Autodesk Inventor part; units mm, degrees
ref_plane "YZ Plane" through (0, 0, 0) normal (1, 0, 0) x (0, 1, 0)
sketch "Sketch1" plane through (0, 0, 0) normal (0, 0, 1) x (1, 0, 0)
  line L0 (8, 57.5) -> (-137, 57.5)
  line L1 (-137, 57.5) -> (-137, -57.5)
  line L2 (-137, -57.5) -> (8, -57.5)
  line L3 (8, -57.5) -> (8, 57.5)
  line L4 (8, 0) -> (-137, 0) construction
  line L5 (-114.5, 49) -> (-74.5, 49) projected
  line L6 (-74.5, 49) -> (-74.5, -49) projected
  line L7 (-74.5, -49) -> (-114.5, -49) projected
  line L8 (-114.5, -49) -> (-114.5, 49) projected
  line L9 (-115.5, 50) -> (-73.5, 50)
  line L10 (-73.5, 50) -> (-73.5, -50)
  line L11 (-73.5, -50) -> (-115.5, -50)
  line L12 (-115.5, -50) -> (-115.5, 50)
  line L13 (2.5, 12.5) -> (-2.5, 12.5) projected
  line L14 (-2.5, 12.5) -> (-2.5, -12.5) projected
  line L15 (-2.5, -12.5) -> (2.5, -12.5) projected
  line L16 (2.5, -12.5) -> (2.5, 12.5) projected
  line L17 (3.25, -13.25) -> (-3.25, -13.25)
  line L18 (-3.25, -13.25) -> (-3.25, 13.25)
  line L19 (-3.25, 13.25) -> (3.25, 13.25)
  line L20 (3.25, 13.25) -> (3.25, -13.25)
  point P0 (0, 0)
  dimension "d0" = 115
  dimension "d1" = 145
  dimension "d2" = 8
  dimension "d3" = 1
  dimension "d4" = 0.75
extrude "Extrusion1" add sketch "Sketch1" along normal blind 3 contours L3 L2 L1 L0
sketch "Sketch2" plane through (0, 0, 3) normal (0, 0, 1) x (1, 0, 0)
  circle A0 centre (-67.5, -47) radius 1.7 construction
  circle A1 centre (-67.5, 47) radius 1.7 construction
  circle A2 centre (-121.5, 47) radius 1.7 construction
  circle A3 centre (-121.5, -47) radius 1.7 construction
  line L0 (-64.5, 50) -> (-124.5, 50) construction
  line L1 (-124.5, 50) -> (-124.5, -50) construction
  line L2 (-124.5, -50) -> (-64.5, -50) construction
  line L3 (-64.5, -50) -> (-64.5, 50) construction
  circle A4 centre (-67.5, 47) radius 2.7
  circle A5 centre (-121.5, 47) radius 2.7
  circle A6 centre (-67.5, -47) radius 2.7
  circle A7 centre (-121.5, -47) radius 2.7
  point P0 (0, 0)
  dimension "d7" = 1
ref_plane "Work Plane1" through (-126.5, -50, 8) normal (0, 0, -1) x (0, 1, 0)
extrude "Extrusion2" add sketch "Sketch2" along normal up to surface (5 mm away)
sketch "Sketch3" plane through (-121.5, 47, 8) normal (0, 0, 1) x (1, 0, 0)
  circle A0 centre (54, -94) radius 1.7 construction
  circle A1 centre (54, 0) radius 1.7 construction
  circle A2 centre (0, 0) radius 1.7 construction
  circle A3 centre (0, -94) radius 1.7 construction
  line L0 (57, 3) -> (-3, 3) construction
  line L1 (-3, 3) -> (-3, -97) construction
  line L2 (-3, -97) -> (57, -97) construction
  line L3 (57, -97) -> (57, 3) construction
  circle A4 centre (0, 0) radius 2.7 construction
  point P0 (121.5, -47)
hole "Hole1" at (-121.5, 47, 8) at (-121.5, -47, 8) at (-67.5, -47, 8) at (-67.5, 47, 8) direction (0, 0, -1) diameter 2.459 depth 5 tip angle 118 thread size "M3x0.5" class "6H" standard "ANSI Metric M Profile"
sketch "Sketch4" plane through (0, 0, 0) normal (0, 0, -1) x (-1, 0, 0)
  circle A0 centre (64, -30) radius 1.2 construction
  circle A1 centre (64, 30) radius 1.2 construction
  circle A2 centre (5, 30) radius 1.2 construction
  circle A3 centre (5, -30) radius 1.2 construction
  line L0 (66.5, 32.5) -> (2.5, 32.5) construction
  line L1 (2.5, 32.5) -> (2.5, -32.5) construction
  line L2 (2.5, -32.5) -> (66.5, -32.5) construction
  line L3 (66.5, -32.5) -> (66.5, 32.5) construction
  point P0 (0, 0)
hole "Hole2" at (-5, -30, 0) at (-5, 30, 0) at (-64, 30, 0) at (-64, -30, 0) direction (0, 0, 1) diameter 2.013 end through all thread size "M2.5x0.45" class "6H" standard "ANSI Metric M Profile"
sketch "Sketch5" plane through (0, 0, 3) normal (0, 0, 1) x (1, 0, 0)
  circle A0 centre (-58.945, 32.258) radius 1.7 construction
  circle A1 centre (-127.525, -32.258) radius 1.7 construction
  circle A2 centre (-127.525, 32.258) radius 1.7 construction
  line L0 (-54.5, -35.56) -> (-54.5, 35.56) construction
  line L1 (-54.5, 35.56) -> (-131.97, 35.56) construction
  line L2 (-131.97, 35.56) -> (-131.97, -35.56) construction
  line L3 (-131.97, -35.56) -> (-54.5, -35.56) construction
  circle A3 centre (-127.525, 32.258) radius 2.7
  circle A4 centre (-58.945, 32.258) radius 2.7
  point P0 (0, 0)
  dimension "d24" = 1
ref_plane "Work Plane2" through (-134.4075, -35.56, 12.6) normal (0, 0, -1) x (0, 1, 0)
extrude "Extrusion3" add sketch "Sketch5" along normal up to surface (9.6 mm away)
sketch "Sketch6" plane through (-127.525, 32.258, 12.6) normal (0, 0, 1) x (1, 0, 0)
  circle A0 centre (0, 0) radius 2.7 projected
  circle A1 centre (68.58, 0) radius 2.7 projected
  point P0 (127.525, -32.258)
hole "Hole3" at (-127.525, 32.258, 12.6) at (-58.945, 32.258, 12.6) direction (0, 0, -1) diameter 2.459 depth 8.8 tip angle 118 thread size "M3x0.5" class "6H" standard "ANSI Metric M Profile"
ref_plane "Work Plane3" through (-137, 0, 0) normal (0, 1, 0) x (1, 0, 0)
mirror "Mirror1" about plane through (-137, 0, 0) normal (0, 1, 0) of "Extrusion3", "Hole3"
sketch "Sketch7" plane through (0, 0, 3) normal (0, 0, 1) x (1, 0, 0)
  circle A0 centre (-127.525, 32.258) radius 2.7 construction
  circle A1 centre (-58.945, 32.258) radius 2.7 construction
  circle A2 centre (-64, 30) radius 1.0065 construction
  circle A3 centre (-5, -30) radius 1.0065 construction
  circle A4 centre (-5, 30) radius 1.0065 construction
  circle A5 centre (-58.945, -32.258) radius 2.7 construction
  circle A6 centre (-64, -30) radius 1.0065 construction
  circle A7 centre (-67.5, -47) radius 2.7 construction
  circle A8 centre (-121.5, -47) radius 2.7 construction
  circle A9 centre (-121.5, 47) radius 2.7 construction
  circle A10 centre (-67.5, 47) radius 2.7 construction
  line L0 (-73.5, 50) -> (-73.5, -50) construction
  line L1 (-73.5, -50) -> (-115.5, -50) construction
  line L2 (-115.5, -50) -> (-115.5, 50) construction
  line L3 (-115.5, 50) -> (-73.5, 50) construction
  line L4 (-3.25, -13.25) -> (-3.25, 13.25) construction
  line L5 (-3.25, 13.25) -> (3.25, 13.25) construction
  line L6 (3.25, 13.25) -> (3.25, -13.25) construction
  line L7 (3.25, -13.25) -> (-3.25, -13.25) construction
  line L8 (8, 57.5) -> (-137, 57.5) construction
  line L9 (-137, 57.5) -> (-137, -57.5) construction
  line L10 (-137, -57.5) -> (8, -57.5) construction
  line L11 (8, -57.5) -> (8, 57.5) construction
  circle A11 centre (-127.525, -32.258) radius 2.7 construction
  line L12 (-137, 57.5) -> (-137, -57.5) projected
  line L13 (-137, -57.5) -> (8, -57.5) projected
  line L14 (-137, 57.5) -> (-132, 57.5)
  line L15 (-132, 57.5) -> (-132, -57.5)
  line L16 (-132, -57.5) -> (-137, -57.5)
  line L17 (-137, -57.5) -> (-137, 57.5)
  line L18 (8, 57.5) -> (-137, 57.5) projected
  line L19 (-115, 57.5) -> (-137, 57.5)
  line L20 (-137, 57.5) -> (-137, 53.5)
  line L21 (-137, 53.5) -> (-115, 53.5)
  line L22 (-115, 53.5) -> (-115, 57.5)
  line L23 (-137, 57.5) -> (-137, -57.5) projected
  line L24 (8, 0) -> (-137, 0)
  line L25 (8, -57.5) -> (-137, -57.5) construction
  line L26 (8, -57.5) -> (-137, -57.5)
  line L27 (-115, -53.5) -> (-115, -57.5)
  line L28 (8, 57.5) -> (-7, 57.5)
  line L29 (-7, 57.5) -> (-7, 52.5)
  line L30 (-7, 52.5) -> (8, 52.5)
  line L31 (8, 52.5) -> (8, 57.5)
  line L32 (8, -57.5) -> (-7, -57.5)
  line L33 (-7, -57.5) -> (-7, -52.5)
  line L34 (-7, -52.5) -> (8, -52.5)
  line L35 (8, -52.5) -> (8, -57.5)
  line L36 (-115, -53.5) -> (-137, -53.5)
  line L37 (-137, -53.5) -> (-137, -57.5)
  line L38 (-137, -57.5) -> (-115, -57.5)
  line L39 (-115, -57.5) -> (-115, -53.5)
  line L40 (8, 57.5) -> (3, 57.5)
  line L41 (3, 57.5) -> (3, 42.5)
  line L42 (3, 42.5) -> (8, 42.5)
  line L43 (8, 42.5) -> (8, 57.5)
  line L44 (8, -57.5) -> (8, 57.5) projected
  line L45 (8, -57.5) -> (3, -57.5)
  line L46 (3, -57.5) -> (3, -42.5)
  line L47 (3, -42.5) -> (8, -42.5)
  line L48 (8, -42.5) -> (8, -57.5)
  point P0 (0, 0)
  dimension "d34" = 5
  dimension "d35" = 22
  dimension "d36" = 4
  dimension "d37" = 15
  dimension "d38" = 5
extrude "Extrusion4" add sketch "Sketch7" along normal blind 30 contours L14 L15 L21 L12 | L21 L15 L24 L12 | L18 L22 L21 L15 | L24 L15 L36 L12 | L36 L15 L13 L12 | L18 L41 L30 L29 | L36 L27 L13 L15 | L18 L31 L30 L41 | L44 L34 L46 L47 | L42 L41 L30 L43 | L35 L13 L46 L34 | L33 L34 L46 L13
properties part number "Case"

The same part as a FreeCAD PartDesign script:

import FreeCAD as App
import Part
import Sketcher
from FreeCAD import Vector
Q = App.Units.Quantity

doc = App.newDocument("Part")
body = doc.addObject("PartDesign::Body", "Body")

# Sketch on XY plane
sketch1 = body.newObject("Sketcher::SketchObject", "Sketch")
sketch1.AttachmentSupport = (doc.getObject("XY_Plane"), [""])
sketch1.MapMode = "FlatFace"
sketch1.addGeometry([
    Part.LineSegment(Vector(8, -58, 0), Vector(8, 58, 0)),  # 0
    Part.LineSegment(Vector(8, 58, 0), Vector(-137, 58, 0)),  # 1
    Part.LineSegment(Vector(-137, 58, 0), Vector(-137, -58, 0)),  # 2
    Part.LineSegment(Vector(-137, -58, 0), Vector(8, -58, 0)),  # 3
    Part.LineSegment(Vector(-116, -50, 0), Vector(-116, 50, 0)),  # 4
    Part.LineSegment(Vector(-116, 50, 0), Vector(-74, 50, 0)),  # 5
    Part.LineSegment(Vector(-74, 50, 0), Vector(-74, -50, 0)),  # 6
    Part.LineSegment(Vector(-74, -50, 0), Vector(-116, -50, 0)),  # 7
    Part.LineSegment(Vector(3, 13, 0), Vector(3, -13, 0)),  # 8
    Part.LineSegment(Vector(3, -13, 0), Vector(-3, -13, 0)),  # 9
    Part.LineSegment(Vector(-3, -13, 0), Vector(-3, 13, 0)),  # 10
    Part.LineSegment(Vector(-3, 13, 0), Vector(3, 13, 0)),  # 11
], False)
sketch1.addConstraint([
    Sketcher.Constraint("Coincident", 0, 2, 1, 1),
    Sketcher.Constraint("Coincident", 1, 2, 2, 1),
    Sketcher.Constraint("Coincident", 2, 2, 3, 1),
    Sketcher.Constraint("Coincident", 3, 2, 0, 1),
    Sketcher.Constraint("Coincident", 4, 2, 5, 1),
    Sketcher.Constraint("Coincident", 5, 2, 6, 1),
    Sketcher.Constraint("Coincident", 6, 2, 7, 1),
    Sketcher.Constraint("Coincident", 7, 2, 4, 1),
    Sketcher.Constraint("Coincident", 8, 2, 9, 1),
    Sketcher.Constraint("Coincident", 9, 2, 10, 1),
    Sketcher.Constraint("Coincident", 10, 2, 11, 1),
    Sketcher.Constraint("Coincident", 11, 2, 8, 1),
    Sketcher.Constraint("Vertical", 0),
    Sketcher.Constraint("Horizontal", 1),
    Sketcher.Constraint("Vertical", 2),
    Sketcher.Constraint("Horizontal", 3),
    Sketcher.Constraint("Vertical", 4),
    Sketcher.Constraint("Horizontal", 5),
    Sketcher.Constraint("Vertical", 6),
    Sketcher.Constraint("Horizontal", 7),
    Sketcher.Constraint("Vertical", 8),
    Sketcher.Constraint("Horizontal", 9),
    Sketcher.Constraint("Vertical", 10),
    Sketcher.Constraint("Horizontal", 11),
    Sketcher.Constraint("Symmetric", 8, 2, 10, 2, -1, 1),
    Sketcher.Constraint("DistanceX", 1, 2, 1, 1, Q("145 mm")),
    Sketcher.Constraint("DistanceY", 0, 1, 0, 2, Q("115 mm")),
    Sketcher.Constraint("DistanceX", -1, 1, 0, 2, Q("8 mm")),
    Sketcher.Constraint("DistanceX", 5, 1, 5, 2, Q("42 mm")),
    Sketcher.Constraint("DistanceY", 4, 1, 4, 2, Q("100 mm")),
    Sketcher.Constraint("DistanceX", 9, 2, 9, 1, Q("6.5 mm")),
    Sketcher.Constraint("DistanceY", 8, 2, 8, 1, Q("26.5 mm")),
    Sketcher.Constraint("DistanceY", -1, 1, 4, 2, Q("50 mm")),
    Sketcher.Constraint("DistanceY", -1, 1, 0, 2, Q("57.5 mm")),
    Sketcher.Constraint("DistanceX", 4, 2, -1, 1, Q("115.5 mm")),
])
pad1 = body.newObject("PartDesign::Pad", "Pad")
pad1.Profile = sketch1
pad1.Length = 3

# Sketch on XY plane
sketch2 = body.newObject("Sketcher::SketchObject", "Sketch001")
sketch2.AttachmentSupport = (doc.getObject("XY_Plane"), [""])
sketch2.MapMode = "FlatFace"
sketch2.AttachmentOffset = App.Placement(Vector(0, 0, 3), App.Rotation())
sketch2.addGeometry([
    Part.Circle(Vector(-67.5, 47, 0), Vector(0, 0, 1), 2.7),
    Part.Circle(Vector(-121.5, 47, 0), Vector(0, 0, 1), 2.7),
    Part.Circle(Vector(-67.5, -47, 0), Vector(0, 0, 1), 2.7),
    Part.Circle(Vector(-121.5, -47, 0), Vector(0, 0, 1), 2.7),
], False)
sketch2.addConstraint([
    Sketcher.Constraint("Equal", 0, 1),
    Sketcher.Constraint("Equal", 1, 2),
    Sketcher.Constraint("Equal", 2, 3),
    Sketcher.Constraint("Symmetric", 0, 3, 2, 3, -1),
    Sketcher.Constraint("Symmetric", 1, 3, 3, 3, -1),
    Sketcher.Constraint("Horizontal", 0, 3, 1, 3),
    Sketcher.Constraint("Diameter", 0, Q("5.4 mm")),
    Sketcher.Constraint("DistanceY", -1, 1, 0, 3, Q("47 mm")),
    Sketcher.Constraint("DistanceX", 1, 3, 0, 3, Q("54 mm")),
    Sketcher.Constraint("DistanceX", 0, 3, -1, 1, Q("67.5 mm")),
])
pad2 = body.newObject("PartDesign::Pad", "Pad001")
pad2.Profile = sketch2
pad2.Length = 5

# Sketch on XY plane
sketch3 = body.newObject("Sketcher::SketchObject", "Sketch002")
sketch3.AttachmentSupport = (doc.getObject("XY_Plane"), [""])
sketch3.MapMode = "FlatFace"
sketch3.AttachmentOffset = App.Placement(Vector(0, 0, 8), App.Rotation())
sketch3.addGeometry([
    Part.Circle(Vector(-121.5, 47, 0), Vector(0, 0, 1), 1.2),
    Part.Circle(Vector(-121.5, -47, 0), Vector(0, 0, 1), 1.2),
    Part.Circle(Vector(-67.5, -47, 0), Vector(0, 0, 1), 1.2),
    Part.Circle(Vector(-67.5, 47, 0), Vector(0, 0, 1), 1.2),
], False)
sketch3.addConstraint([
    Sketcher.Constraint("Equal", 0, 1),
    Sketcher.Constraint("Equal", 1, 2),
    Sketcher.Constraint("Equal", 2, 3),
    Sketcher.Constraint("Symmetric", 0, 3, 1, 3, -1),
    Sketcher.Constraint("Symmetric", 2, 3, 3, 3, -1),
    Sketcher.Constraint("Horizontal", 1, 3, 2, 3),
    Sketcher.Constraint("Diameter", 0, Q("2.459 mm")),
    Sketcher.Constraint("DistanceY", -1, 1, 0, 3, Q("47 mm")),
    Sketcher.Constraint("DistanceX", 1, 3, 2, 3, Q("54 mm")),
    Sketcher.Constraint("DistanceX", 0, 3, -1, 1, Q("121.5 mm")),
])
doc.recompute()
hole = body.newObject("PartDesign::Hole", "Hole")
hole.Profile = sketch3
hole.ThreadType = "None"
hole.Diameter = 2.459
hole.DepthType = "Dimension"
hole.Depth = 5
hole.DrillPoint = "Angled"
hole.DrillPointAngle = 118

# Sketch on XY plane
sketch4 = body.newObject("Sketcher::SketchObject", "Sketch003")
sketch4.AttachmentSupport = (doc.getObject("XY_Plane"), [""])
sketch4.MapMode = "FlatFace"
sketch4.addGeometry([
    Part.Circle(Vector(-5, -30, 0), Vector(0, 0, 1), 1),
    Part.Circle(Vector(-5, 30, 0), Vector(0, 0, 1), 1),
    Part.Circle(Vector(-64, 30, 0), Vector(0, 0, 1), 1),
    Part.Circle(Vector(-64, -30, 0), Vector(0, 0, 1), 1),
], False)
sketch4.addConstraint([
    Sketcher.Constraint("Equal", 0, 1),
    Sketcher.Constraint("Equal", 1, 2),
    Sketcher.Constraint("Equal", 2, 3),
    Sketcher.Constraint("Symmetric", 0, 3, 1, 3, -1),
    Sketcher.Constraint("Symmetric", 2, 3, 3, 3, -1),
    Sketcher.Constraint("Horizontal", 1, 3, 2, 3),
    Sketcher.Constraint("Diameter", 0, Q("2.013 mm")),
    Sketcher.Constraint("DistanceX", 0, 3, -1, 1, Q("5 mm")),
    Sketcher.Constraint("DistanceY", 0, 3, -1, 1, Q("30 mm")),
    Sketcher.Constraint("DistanceX", 2, 3, -1, 1, Q("64 mm")),
])
doc.recompute()
hole2 = body.newObject("PartDesign::Hole", "Hole001")
hole2.Profile = sketch4
hole2.ThreadType = "None"
hole2.Diameter = 2.013
hole2.DepthType = "ThroughAll"
hole2.Reversed = True

# Sketch on XY plane
sketch5 = body.newObject("Sketcher::SketchObject", "Sketch004")
sketch5.AttachmentSupport = (doc.getObject("XY_Plane"), [""])
sketch5.MapMode = "FlatFace"
sketch5.AttachmentOffset = App.Placement(Vector(0, 0, 3), App.Rotation())
sketch5.addGeometry([
    Part.Circle(Vector(-127.5, 32.3, 0), Vector(0, 0, 1), 2.7),
    Part.Circle(Vector(-58.9, 32.3, 0), Vector(0, 0, 1), 2.7),
], False)
sketch5.addConstraint([
    Sketcher.Constraint("Equal", 0, 1),
    Sketcher.Constraint("Horizontal", 0, 3, 1, 3),
    Sketcher.Constraint("Diameter", 0, Q("5.4 mm")),
    Sketcher.Constraint("DistanceX", 0, 3, 1, 3, Q("68.58 mm")),
    Sketcher.Constraint("DistanceX", 0, 3, -1, 1, Q("127.525 mm")),
    Sketcher.Constraint("DistanceY", -1, 1, 0, 3, Q("32.258 mm")),
])
pad3 = body.newObject("PartDesign::Pad", "Pad002")
pad3.Profile = sketch5
pad3.Length = 9.6

# Sketch on XY plane
sketch6 = body.newObject("Sketcher::SketchObject", "Sketch005")
sketch6.AttachmentSupport = (doc.getObject("XY_Plane"), [""])
sketch6.MapMode = "FlatFace"
sketch6.AttachmentOffset = App.Placement(Vector(0, 0, 12.6), App.Rotation())
sketch6.addGeometry([
    Part.Circle(Vector(-127.5, 32.3, 0), Vector(0, 0, 1), 1.2),
    Part.Circle(Vector(-58.9, 32.3, 0), Vector(0, 0, 1), 1.2),
], False)
sketch6.addConstraint([
    Sketcher.Constraint("Equal", 0, 1),
    Sketcher.Constraint("Horizontal", 0, 3, 1, 3),
    Sketcher.Constraint("Diameter", 0, Q("2.459 mm")),
    Sketcher.Constraint("DistanceX", 0, 3, 1, 3, Q("68.58 mm")),
    Sketcher.Constraint("DistanceX", 0, 3, -1, 1, Q("127.525 mm")),
    Sketcher.Constraint("DistanceY", -1, 1, 0, 3, Q("32.258 mm")),
])
doc.recompute()
hole3 = body.newObject("PartDesign::Hole", "Hole002")
hole3.Profile = sketch6
hole3.ThreadType = "None"
hole3.Diameter = 2.459
hole3.DepthType = "Dimension"
hole3.Depth = 8.8
hole3.DrillPoint = "Angled"
hole3.DrillPointAngle = 118
doc.recompute()

mirrored = body.newObject("PartDesign::Mirrored", "Mirrored")
mirrored.Originals = [pad3, hole3]
mirrored.MirrorPlane = (doc.getObject("XZ_Plane"), [""])
body.Tip = mirrored

# Sketch on XY plane
sketch7 = body.newObject("Sketcher::SketchObject", "Sketch006")
sketch7.AttachmentSupport = (doc.getObject("XY_Plane"), [""])
sketch7.MapMode = "FlatFace"
sketch7.AttachmentOffset = App.Placement(Vector(0, 0, 3), App.Rotation())
sketch7.addGeometry([
    Part.LineSegment(Vector(-137, 57.5, 0), Vector(-137, -57.5, 0)),  # 0
    Part.LineSegment(Vector(-137, -57.5, 0), Vector(-115, -57.5, 0)),  # 1
    Part.LineSegment(Vector(-115, -57.5, 0), Vector(-115, -53.5, 0)),  # 2
    Part.LineSegment(Vector(-115, -53.5, 0), Vector(-132, -53.5, 0)),  # 3
    Part.LineSegment(Vector(-132, -53.5, 0), Vector(-132, 53.5, 0)),  # 4
    Part.LineSegment(Vector(-132, 53.5, 0), Vector(-115, 53.5, 0)),  # 5
    Part.LineSegment(Vector(-115, 53.5, 0), Vector(-115, 57.5, 0)),  # 6
    Part.LineSegment(Vector(-115, 57.5, 0), Vector(-137, 57.5, 0)),  # 7
    Part.LineSegment(Vector(-7, 57.5, 0), Vector(-7, 52.5, 0)),  # 8
    Part.LineSegment(Vector(-7, 52.5, 0), Vector(3, 52.5, 0)),  # 9
    Part.LineSegment(Vector(3, 52.5, 0), Vector(3, 42.5, 0)),  # 10
    Part.LineSegment(Vector(3, 42.5, 0), Vector(8, 42.5, 0)),  # 11
    Part.LineSegment(Vector(8, 42.5, 0), Vector(8, 57.5, 0)),  # 12
    Part.LineSegment(Vector(8, 57.5, 0), Vector(-7, 57.5, 0)),  # 13
    Part.LineSegment(Vector(8, -42.5, 0), Vector(3, -42.5, 0)),  # 14
    Part.LineSegment(Vector(3, -42.5, 0), Vector(3, -52.5, 0)),  # 15
    Part.LineSegment(Vector(3, -52.5, 0), Vector(-7, -52.5, 0)),  # 16
    Part.LineSegment(Vector(-7, -52.5, 0), Vector(-7, -57.5, 0)),  # 17
    Part.LineSegment(Vector(-7, -57.5, 0), Vector(8, -57.5, 0)),  # 18
    Part.LineSegment(Vector(8, -57.5, 0), Vector(8, -42.5, 0)),  # 19
], False)
sketch7.addConstraint([
    Sketcher.Constraint("Coincident", 0, 2, 1, 1),
    Sketcher.Constraint("Coincident", 1, 2, 2, 1),
    Sketcher.Constraint("Coincident", 2, 2, 3, 1),
    Sketcher.Constraint("Coincident", 3, 2, 4, 1),
    Sketcher.Constraint("Coincident", 4, 2, 5, 1),
    Sketcher.Constraint("Coincident", 5, 2, 6, 1),
    Sketcher.Constraint("Coincident", 6, 2, 7, 1),
    Sketcher.Constraint("Coincident", 7, 2, 0, 1),
    Sketcher.Constraint("Coincident", 8, 2, 9, 1),
    Sketcher.Constraint("Coincident", 9, 2, 10, 1),
    Sketcher.Constraint("Coincident", 10, 2, 11, 1),
    Sketcher.Constraint("Coincident", 11, 2, 12, 1),
    Sketcher.Constraint("Coincident", 12, 2, 13, 1),
    Sketcher.Constraint("Coincident", 13, 2, 8, 1),
    Sketcher.Constraint("Coincident", 14, 2, 15, 1),
    Sketcher.Constraint("Coincident", 15, 2, 16, 1),
    Sketcher.Constraint("Coincident", 16, 2, 17, 1),
    Sketcher.Constraint("Coincident", 17, 2, 18, 1),
    Sketcher.Constraint("Coincident", 18, 2, 19, 1),
    Sketcher.Constraint("Coincident", 19, 2, 14, 1),
    Sketcher.Constraint("Vertical", 0),
    Sketcher.Constraint("Horizontal", 1),
    Sketcher.Constraint("Vertical", 2),
    Sketcher.Constraint("Horizontal", 3),
    Sketcher.Constraint("Vertical", 4),
    Sketcher.Constraint("Horizontal", 5),
    Sketcher.Constraint("Vertical", 6),
    Sketcher.Constraint("Horizontal", 7),
    Sketcher.Constraint("Vertical", 8),
    Sketcher.Constraint("Horizontal", 9),
    Sketcher.Constraint("Vertical", 10),
    Sketcher.Constraint("Horizontal", 11),
    Sketcher.Constraint("Vertical", 12),
    Sketcher.Constraint("Horizontal", 13),
    Sketcher.Constraint("Horizontal", 14),
    Sketcher.Constraint("Vertical", 15),
    Sketcher.Constraint("Horizontal", 16),
    Sketcher.Constraint("Vertical", 17),
    Sketcher.Constraint("Horizontal", 18),
    Sketcher.Constraint("Vertical", 19),
    Sketcher.Constraint("Symmetric", 2, 2, 5, 2, -1),
    Sketcher.Constraint("Symmetric", 10, 2, 14, 2, -1),
    Sketcher.Constraint("Symmetric", 8, 2, 16, 2, -1),
    Sketcher.Constraint("Symmetric", 12, 2, 18, 2, -1),
    Sketcher.Constraint("Horizontal", 7, 2, 12, 2),
    Sketcher.Constraint("Horizontal", 1, 2, 17, 2),
    Sketcher.Constraint("Equal", 14, 8),
    Sketcher.Constraint("Equal", 16, 10),
    Sketcher.Constraint("DistanceX", 1, 1, 1, 2, Q("22 mm")),
    Sketcher.Constraint("DistanceX", 11, 1, 11, 2, Q("5 mm")),
    Sketcher.Constraint("DistanceX", 13, 2, 13, 1, Q("15 mm")),
    Sketcher.Constraint("DistanceY", 2, 1, 2, 2, Q("4 mm")),
    Sketcher.Constraint("DistanceX", 0, 2, 3, 2, Q("5 mm")),
    Sketcher.Constraint("DistanceY", 0, 2, 0, 1, Q("115 mm")),
    Sketcher.Constraint("DistanceX", 0, 2, -1, 1, Q("137 mm")),
    Sketcher.Constraint("DistanceX", 8, 2, -1, 1, Q("7 mm")),
])
pad4 = body.newObject("PartDesign::Pad", "Pad003")
pad4.Profile = sketch7
pad4.Length = 30

doc.recompute()
